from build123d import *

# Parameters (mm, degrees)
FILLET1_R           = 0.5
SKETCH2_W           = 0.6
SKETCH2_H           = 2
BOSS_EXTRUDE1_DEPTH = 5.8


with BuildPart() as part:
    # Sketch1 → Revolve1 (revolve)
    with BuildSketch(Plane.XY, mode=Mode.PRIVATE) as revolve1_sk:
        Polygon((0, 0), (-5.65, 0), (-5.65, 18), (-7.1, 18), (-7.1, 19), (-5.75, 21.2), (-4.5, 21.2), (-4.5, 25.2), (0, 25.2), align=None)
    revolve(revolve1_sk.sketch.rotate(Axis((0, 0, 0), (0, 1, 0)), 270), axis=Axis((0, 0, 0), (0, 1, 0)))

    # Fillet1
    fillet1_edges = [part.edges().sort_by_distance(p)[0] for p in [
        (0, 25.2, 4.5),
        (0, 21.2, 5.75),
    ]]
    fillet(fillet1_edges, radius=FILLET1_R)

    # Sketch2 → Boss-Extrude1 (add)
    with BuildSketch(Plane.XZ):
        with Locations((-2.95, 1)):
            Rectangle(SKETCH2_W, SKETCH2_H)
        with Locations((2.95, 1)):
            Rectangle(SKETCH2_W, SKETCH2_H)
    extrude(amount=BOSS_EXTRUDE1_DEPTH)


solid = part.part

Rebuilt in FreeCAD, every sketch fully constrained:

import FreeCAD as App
import Part
import Sketcher
from FreeCAD import Vector
Q = App.Units.Quantity


def edges_at(feature, points):
    """Names of the edges that pass closest to the given points."""
    edges = feature.Shape.Edges
    near = lambda p: min(range(len(edges)), key=lambda i: edges[i].distToShape(Part.Vertex(*p))[0])
    return sorted({f"Edge{near(p) + 1}" for p in points})

doc = App.newDocument("Part")
body = doc.addObject("PartDesign::Body", "Body")

# Sketch on XY plane
sketch1 = doc.addObject("Sketcher::SketchObject", "Sketch")
body.addObject(sketch1)
sketch1.AttachmentSupport = (doc.XY_Plane, [""])
sketch1.MapMode = "FlatFace"
sketch1.addGeometry(Part.LineSegment(Vector(-5.7, 0, 0), Vector(0, 0, 0)), False)
sketch1.addGeometry(Part.LineSegment(Vector(0, 0, 0), Vector(0, 25.2, 0)), False)
sketch1.addGeometry(Part.LineSegment(Vector(0, 25.2, 0), Vector(-4.5, 25.2, 0)), False)
sketch1.addGeometry(Part.LineSegment(Vector(-4.5, 25.2, 0), Vector(-4.5, 21.2, 0)), False)
sketch1.addGeometry(Part.LineSegment(Vector(-4.5, 21.2, 0), Vector(-5.8, 21.2, 0)), False)
sketch1.addGeometry(Part.LineSegment(Vector(-5.8, 21.2, 0), Vector(-7.1, 19, 0)), False)
sketch1.addGeometry(Part.LineSegment(Vector(-7.1, 19, 0), Vector(-7.1, 18, 0)), False)
sketch1.addGeometry(Part.LineSegment(Vector(-7.1, 18, 0), Vector(-5.7, 18, 0)), False)
sketch1.addGeometry(Part.LineSegment(Vector(-5.7, 18, 0), Vector(-5.7, 0, 0)), False)
sketch1.addConstraint(Sketcher.Constraint("Coincident", 0, 2, 1, 1))
sketch1.addConstraint(Sketcher.Constraint("Coincident", 1, 2, 2, 1))
sketch1.addConstraint(Sketcher.Constraint("Coincident", 2, 2, 3, 1))
sketch1.addConstraint(Sketcher.Constraint("Coincident", 3, 2, 4, 1))
sketch1.addConstraint(Sketcher.Constraint("Coincident", 4, 2, 5, 1))
sketch1.addConstraint(Sketcher.Constraint("Coincident", 5, 2, 6, 1))
sketch1.addConstraint(Sketcher.Constraint("Coincident", 6, 2, 7, 1))
sketch1.addConstraint(Sketcher.Constraint("Coincident", 7, 2, 8, 1))
sketch1.addConstraint(Sketcher.Constraint("Coincident", 8, 2, 0, 1))
sketch1.addConstraint(Sketcher.Constraint("Horizontal", 0))
sketch1.addConstraint(Sketcher.Constraint("Vertical", 1))
sketch1.addConstraint(Sketcher.Constraint("Horizontal", 2))
sketch1.addConstraint(Sketcher.Constraint("Vertical", 3))
sketch1.addConstraint(Sketcher.Constraint("Horizontal", 4))
sketch1.addConstraint(Sketcher.Constraint("Vertical", 6))
sketch1.addConstraint(Sketcher.Constraint("Horizontal", 7))
sketch1.addConstraint(Sketcher.Constraint("Vertical", 8))
sketch1.addConstraint(Sketcher.Constraint("Coincident", 0, 2, -1, 1))
sketch1.addConstraint(Sketcher.Constraint("DistanceY", 3, 2, 3, 1, Q("4 mm")))
sketch1.addConstraint(Sketcher.Constraint("DistanceY", 6, 2, 6, 1, Q("1 mm")))
sketch1.addConstraint(Sketcher.Constraint("DistanceY", 8, 2, 8, 1, Q("18 mm")))
sketch1.addConstraint(Sketcher.Constraint("DistanceX", 2, 2, 2, 1, Q("4.5 mm")))
sketch1.addConstraint(Sketcher.Constraint("DistanceY", 1, 1, 1, 2, Q("25.2 mm")))
sketch1.addConstraint(Sketcher.Constraint("DistanceX", 0, 1, 0, 2, Q("5.65 mm")))
sketch1.addConstraint(Sketcher.Constraint("DistanceX", 4, 2, 4, 1, Q("1.25 mm")))
sketch1.addConstraint(Sketcher.Constraint("DistanceX", 7, 1, 7, 2, Q("1.45 mm")))
revolution = doc.addObject("PartDesign::Revolution", "Revolution")
body.addObject(revolution)
revolution.Profile = sketch1
revolution.ReferenceAxis = (sketch1, ["V_Axis"])
revolution.Angle = 360
doc.recompute()

fillet = doc.addObject("PartDesign::Fillet", "Fillet")
body.addObject(fillet)
fillet.Base = (revolution, edges_at(revolution, [(0, 25.2, 4.5), (0, 21.2, 5.75)]))
fillet.Radius = 0.5

# Sketch on XZ plane
sketch2 = doc.addObject("Sketcher::SketchObject", "Sketch001")
body.addObject(sketch2)
sketch2.AttachmentSupport = (doc.XZ_Plane, [""])
sketch2.MapMode = "FlatFace"
sketch2.addGeometry(Part.LineSegment(Vector(-3.2, 2, 0), Vector(-3.2, 0, 0)), False)
sketch2.addGeometry(Part.LineSegment(Vector(-3.2, 0, 0), Vector(-2.6, 0, 0)), False)
sketch2.addGeometry(Part.LineSegment(Vector(-2.6, 0, 0), Vector(-2.6, 2, 0)), False)
sketch2.addGeometry(Part.LineSegment(Vector(-2.6, 2, 0), Vector(-3.2, 2, 0)), False)
sketch2.addGeometry(Part.LineSegment(Vector(2.6, 2, 0), Vector(2.6, 0, 0)), False)
sketch2.addGeometry(Part.LineSegment(Vector(2.6, 0, 0), Vector(3.2, 0, 0)), False)
sketch2.addGeometry(Part.LineSegment(Vector(3.2, 0, 0), Vector(3.2, 2, 0)), False)
sketch2.addGeometry(Part.LineSegment(Vector(3.2, 2, 0), Vector(2.6, 2, 0)), False)
sketch2.addConstraint(Sketcher.Constraint("Coincident", 0, 2, 1, 1))
sketch2.addConstraint(Sketcher.Constraint("Coincident", 1, 2, 2, 1))
sketch2.addConstraint(Sketcher.Constraint("Coincident", 2, 2, 3, 1))
sketch2.addConstraint(Sketcher.Constraint("Coincident", 3, 2, 0, 1))
sketch2.addConstraint(Sketcher.Constraint("Coincident", 4, 2, 5, 1))
sketch2.addConstraint(Sketcher.Constraint("Coincident", 5, 2, 6, 1))
sketch2.addConstraint(Sketcher.Constraint("Coincident", 6, 2, 7, 1))
sketch2.addConstraint(Sketcher.Constraint("Coincident", 7, 2, 4, 1))
sketch2.addConstraint(Sketcher.Constraint("Vertical", 0))
sketch2.addConstraint(Sketcher.Constraint("Horizontal", 1))
sketch2.addConstraint(Sketcher.Constraint("Vertical", 2))
sketch2.addConstraint(Sketcher.Constraint("Horizontal", 3))
sketch2.addConstraint(Sketcher.Constraint("Vertical", 4))
sketch2.addConstraint(Sketcher.Constraint("Horizontal", 5))
sketch2.addConstraint(Sketcher.Constraint("Vertical", 6))
sketch2.addConstraint(Sketcher.Constraint("Horizontal", 7))
sketch2.addConstraint(Sketcher.Constraint("Symmetric", 1, 2, 4, 2, -1, 1))
sketch2.addConstraint(Sketcher.Constraint("Symmetric", 0, 2, 5, 2, -2))
sketch2.addConstraint(Sketcher.Constraint("Horizontal", 3, 2, 6, 2))
sketch2.addConstraint(Sketcher.Constraint("DistanceY", 0, 2, 0, 1, Q("2 mm")))
sketch2.addConstraint(Sketcher.Constraint("DistanceX", 1, 1, 1, 2, Q("0.6 mm")))
sketch2.addConstraint(Sketcher.Constraint("DistanceX", 1, 2, 4, 2, Q("5.3 mm")))
pad1 = doc.addObject("PartDesign::Pad", "Pad")
body.addObject(pad1)
pad1.Profile = sketch2
pad1.Length = 5.8

doc.recompute()
